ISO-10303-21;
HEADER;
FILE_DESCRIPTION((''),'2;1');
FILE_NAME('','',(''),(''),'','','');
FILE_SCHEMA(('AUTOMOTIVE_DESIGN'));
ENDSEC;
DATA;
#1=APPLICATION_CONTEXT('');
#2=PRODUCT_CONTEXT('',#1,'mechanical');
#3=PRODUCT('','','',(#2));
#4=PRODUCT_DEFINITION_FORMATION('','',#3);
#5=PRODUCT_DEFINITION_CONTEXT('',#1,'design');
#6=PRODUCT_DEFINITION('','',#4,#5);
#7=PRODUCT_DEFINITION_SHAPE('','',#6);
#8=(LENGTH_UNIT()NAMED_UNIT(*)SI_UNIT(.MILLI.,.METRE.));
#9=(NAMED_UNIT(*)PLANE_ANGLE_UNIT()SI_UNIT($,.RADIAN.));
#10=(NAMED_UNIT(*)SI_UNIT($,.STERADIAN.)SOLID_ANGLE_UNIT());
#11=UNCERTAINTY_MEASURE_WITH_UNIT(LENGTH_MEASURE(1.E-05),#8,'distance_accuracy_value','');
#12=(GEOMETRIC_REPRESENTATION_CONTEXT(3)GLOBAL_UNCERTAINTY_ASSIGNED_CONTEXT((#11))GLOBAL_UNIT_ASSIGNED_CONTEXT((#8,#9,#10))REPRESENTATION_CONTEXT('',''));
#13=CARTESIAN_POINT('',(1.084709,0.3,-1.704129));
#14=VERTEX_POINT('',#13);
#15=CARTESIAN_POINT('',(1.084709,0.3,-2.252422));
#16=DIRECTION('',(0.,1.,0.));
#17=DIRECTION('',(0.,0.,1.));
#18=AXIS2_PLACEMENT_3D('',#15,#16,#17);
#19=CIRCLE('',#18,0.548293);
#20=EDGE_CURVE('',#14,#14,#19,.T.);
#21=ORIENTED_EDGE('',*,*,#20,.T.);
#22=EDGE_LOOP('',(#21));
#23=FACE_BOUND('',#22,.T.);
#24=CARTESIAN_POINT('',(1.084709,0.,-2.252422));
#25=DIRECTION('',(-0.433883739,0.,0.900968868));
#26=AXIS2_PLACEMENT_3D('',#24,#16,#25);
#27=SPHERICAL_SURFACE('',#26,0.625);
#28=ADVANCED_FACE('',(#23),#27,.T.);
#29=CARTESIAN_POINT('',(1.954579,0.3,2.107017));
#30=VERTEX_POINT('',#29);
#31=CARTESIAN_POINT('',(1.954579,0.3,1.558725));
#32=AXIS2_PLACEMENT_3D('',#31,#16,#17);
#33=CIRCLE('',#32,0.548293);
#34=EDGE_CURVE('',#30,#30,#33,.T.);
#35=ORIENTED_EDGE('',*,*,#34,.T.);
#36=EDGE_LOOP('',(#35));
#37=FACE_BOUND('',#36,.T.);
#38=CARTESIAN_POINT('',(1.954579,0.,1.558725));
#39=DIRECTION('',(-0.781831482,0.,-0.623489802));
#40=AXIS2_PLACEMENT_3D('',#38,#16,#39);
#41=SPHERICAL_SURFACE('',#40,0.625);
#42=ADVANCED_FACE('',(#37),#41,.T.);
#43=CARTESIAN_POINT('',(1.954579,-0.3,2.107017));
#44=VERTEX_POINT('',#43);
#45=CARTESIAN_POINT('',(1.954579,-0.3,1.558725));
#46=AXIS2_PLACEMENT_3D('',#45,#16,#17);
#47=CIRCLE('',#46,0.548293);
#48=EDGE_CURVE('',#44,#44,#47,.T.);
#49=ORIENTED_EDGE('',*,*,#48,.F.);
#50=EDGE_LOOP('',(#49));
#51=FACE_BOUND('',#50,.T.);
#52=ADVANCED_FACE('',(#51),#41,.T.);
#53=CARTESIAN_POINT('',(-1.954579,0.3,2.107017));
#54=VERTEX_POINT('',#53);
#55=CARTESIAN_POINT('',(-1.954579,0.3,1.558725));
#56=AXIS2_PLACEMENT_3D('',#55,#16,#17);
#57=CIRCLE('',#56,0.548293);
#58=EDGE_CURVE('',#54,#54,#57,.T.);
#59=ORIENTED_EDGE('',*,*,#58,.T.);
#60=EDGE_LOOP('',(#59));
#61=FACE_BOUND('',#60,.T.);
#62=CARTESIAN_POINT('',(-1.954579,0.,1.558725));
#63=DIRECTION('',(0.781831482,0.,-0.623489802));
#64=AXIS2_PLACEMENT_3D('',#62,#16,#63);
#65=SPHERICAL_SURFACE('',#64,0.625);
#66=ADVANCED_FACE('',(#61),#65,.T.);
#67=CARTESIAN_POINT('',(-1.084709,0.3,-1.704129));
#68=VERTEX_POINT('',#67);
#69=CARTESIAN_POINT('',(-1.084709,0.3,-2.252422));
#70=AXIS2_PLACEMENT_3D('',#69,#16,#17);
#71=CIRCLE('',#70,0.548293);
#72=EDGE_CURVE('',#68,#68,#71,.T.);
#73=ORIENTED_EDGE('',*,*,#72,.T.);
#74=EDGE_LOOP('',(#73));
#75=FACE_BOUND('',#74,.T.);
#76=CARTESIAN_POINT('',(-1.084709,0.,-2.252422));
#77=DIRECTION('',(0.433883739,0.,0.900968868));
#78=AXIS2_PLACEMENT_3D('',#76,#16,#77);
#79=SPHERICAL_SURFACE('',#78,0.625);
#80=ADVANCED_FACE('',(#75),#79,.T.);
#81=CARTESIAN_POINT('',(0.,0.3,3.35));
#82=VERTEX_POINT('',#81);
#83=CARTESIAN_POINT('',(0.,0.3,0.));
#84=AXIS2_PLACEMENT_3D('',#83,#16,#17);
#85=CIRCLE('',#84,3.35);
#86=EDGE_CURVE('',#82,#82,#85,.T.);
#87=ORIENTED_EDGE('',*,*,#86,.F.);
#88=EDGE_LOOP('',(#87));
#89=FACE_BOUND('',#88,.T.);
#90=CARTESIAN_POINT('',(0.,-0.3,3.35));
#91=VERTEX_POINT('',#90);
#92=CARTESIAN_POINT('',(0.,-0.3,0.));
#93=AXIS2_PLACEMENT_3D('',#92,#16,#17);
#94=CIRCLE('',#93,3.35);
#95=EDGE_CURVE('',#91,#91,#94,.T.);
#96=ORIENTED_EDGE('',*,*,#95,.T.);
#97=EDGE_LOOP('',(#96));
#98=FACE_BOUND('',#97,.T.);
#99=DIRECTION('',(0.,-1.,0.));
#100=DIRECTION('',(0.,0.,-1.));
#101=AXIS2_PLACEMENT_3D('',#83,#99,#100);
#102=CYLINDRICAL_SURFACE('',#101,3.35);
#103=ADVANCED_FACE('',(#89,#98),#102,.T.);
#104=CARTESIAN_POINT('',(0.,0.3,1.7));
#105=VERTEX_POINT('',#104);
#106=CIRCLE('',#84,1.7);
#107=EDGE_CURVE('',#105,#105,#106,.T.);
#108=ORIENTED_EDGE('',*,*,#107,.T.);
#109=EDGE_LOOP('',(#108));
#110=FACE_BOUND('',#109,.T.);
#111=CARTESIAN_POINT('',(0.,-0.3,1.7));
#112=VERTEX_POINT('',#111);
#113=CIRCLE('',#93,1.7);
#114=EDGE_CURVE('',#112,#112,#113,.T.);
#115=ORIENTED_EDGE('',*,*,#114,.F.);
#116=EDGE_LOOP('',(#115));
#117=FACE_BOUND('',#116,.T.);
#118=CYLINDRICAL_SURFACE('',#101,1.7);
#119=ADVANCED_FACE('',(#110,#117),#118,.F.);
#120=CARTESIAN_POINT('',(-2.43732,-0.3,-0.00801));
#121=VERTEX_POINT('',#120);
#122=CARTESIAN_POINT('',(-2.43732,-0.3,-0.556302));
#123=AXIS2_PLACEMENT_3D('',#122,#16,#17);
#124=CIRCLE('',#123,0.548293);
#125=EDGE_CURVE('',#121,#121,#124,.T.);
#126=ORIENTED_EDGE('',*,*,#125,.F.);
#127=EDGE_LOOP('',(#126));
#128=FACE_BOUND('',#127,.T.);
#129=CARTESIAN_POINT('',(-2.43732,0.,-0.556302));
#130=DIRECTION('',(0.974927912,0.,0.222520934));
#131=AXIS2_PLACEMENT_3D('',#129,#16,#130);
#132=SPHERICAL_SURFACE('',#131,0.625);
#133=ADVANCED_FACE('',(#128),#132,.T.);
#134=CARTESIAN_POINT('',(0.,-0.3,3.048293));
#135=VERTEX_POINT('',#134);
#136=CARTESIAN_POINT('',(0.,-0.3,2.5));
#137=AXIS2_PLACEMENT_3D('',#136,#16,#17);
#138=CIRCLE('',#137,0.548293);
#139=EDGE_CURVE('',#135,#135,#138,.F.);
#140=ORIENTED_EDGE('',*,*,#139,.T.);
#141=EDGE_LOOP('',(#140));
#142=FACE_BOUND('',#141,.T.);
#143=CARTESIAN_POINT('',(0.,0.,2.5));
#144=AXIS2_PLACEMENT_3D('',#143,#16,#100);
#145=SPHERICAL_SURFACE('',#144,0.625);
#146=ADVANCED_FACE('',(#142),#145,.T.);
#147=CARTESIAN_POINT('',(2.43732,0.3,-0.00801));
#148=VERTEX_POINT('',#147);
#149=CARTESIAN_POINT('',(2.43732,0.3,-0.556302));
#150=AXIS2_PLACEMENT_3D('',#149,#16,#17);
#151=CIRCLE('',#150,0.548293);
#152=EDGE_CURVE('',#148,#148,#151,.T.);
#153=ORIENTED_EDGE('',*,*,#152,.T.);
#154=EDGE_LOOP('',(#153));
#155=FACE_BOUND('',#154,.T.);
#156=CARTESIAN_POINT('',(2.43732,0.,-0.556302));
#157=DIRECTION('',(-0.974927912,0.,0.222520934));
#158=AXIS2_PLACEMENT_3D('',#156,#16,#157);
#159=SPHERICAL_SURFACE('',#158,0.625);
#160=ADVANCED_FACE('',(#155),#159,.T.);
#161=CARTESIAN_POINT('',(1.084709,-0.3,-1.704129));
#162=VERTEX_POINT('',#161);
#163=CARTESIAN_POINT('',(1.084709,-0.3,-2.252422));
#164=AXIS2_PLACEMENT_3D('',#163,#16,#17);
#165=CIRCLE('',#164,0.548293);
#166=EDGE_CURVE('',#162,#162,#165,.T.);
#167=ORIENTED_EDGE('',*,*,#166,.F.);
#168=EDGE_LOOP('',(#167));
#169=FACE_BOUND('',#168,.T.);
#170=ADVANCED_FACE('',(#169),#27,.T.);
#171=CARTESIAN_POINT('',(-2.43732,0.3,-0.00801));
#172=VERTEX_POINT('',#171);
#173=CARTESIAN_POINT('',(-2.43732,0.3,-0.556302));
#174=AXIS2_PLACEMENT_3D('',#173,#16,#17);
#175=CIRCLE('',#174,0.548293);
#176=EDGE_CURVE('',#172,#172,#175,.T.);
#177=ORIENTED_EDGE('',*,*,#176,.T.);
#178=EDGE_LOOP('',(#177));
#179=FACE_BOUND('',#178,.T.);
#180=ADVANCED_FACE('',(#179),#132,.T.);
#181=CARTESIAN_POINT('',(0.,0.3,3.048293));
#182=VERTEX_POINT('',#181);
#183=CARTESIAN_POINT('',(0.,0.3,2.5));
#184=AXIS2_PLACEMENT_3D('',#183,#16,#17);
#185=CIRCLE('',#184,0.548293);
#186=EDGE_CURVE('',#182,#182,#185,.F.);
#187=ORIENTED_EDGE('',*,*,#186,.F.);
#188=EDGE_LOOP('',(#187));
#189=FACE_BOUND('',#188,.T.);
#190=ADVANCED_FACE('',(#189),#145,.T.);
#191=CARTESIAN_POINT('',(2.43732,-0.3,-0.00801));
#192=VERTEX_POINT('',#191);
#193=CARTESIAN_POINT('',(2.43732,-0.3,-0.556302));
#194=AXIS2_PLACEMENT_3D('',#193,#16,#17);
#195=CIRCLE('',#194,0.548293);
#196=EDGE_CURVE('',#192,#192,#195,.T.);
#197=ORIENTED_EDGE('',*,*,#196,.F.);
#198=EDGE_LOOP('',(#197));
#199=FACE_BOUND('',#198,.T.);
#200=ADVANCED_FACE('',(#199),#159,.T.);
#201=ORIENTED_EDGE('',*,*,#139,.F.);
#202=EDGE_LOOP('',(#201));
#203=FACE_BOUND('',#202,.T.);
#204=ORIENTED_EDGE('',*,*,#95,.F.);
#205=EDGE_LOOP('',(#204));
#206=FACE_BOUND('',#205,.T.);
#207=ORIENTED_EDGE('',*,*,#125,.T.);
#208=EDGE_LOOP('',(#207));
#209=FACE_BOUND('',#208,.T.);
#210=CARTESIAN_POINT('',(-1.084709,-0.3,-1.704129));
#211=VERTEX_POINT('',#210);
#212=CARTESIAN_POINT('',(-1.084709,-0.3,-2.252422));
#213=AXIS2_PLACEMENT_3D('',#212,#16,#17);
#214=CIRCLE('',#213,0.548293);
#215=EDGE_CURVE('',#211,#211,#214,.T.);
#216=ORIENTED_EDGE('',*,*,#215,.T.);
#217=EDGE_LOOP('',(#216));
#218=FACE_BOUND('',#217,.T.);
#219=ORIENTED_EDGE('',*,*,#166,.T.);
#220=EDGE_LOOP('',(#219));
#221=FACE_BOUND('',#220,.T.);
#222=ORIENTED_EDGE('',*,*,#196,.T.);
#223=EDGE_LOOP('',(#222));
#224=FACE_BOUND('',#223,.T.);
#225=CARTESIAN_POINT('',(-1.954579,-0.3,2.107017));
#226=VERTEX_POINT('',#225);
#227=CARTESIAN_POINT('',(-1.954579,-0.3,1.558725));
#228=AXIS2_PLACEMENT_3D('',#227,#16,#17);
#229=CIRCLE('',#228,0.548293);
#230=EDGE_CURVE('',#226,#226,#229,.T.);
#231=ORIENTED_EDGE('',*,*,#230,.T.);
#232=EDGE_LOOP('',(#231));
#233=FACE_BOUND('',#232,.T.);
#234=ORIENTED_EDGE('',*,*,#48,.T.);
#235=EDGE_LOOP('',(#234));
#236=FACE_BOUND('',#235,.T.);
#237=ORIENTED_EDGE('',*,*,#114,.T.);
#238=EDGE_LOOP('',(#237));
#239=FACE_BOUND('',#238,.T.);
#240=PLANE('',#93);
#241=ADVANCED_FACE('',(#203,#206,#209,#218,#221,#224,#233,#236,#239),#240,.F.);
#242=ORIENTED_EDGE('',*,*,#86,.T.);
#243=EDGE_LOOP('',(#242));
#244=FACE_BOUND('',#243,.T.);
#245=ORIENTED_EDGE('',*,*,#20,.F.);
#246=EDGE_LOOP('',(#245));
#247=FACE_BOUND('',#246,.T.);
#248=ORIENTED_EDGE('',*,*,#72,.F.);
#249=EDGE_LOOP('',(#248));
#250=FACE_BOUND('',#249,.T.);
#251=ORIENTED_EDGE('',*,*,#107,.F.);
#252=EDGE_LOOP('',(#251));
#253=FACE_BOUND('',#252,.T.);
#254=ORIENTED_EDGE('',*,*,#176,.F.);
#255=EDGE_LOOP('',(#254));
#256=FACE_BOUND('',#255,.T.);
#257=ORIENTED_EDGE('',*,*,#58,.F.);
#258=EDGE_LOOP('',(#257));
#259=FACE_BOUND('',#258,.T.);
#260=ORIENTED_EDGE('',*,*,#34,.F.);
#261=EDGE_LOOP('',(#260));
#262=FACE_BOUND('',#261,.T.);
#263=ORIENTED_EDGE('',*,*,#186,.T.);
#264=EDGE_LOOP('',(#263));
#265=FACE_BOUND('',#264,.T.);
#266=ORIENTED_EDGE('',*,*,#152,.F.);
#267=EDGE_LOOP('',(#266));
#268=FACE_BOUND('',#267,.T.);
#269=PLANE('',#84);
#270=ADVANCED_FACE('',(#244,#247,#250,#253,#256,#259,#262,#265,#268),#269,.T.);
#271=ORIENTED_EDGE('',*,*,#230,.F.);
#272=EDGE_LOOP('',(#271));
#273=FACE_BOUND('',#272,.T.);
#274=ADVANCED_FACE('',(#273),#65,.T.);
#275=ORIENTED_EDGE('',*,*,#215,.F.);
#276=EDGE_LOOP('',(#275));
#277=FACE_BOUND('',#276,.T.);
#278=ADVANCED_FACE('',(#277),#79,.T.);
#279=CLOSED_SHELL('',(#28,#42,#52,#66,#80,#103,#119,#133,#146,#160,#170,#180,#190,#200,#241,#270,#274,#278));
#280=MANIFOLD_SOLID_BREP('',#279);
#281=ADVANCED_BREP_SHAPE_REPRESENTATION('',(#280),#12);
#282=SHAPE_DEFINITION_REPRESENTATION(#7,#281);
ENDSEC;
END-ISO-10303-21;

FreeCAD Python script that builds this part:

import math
import FreeCAD as App
import Part
import Sketcher
from FreeCAD import Vector

doc = App.newDocument("Part")
body = doc.addObject("PartDesign::Body", "Body")

# Sketch on YZ plane
sketch1 = doc.addObject("Sketcher::SketchObject", "Sketch")
body.addObject(sketch1)
sketch1.AttachmentSupport = (doc.YZ_Plane, [""])
sketch1.MapMode = "FlatFace"
sketch1.addGeometry(Part.LineSegment(Vector(-0.6, 2.5, 0), Vector(0.6, 2.5, 0)), False)
sketch1.addGeometry(Part.ArcOfCircle(Part.Circle(Vector(0, 2.5, 0), Vector(0, 0, 1), 0.6), math.radians(0), math.radians(180)), False)
sketch1.addGeometry(Part.LineSegment(Vector(0.6, 2.5, 0), Vector(-0.6, 2.5, 0)), True)  # axis
sketch1.addConstraint(Sketcher.Constraint("Coincident", 0, 1, 1, 2))
sketch1.addConstraint(Sketcher.Constraint("Coincident", 1, 1, 0, 2))
sketch1.addConstraint(Sketcher.Constraint("Horizontal", 0))
sketch1.addConstraint(Sketcher.Constraint("Horizontal", 2))
sketch1.addConstraint(Sketcher.Constraint("Coincident", 2, 1, 1, 1))
sketch1.addConstraint(Sketcher.Constraint("PointOnObject", 1, 3, -2))
sketch1.addConstraint(Sketcher.Constraint("Horizontal", 1, 3, 0, 1))
sketch1.addConstraint(Sketcher.Constraint("Equal", 0, 2))
sketch1.addConstraint(Sketcher.Constraint("Radius", 1, 0.625))
sketch1.addConstraint(Sketcher.Constraint("DistanceY", -1, 1, 1, 3, 2.5))
revolution = doc.addObject("PartDesign::Revolution", "Revolution")
body.addObject(revolution)
revolution.Profile = sketch1
revolution.ReferenceAxis = (sketch1, ["Axis0"])
revolution.Angle = 360

# Sketch on XZ plane
sketch2 = doc.addObject("Sketcher::SketchObject", "Sketch001")
body.addObject(sketch2)
sketch2.AttachmentSupport = (doc.XZ_Plane, [""])
sketch2.MapMode = "FlatFace"
sketch2.addGeometry(Part.Circle(Vector(0, 0, 0), Vector(0, 0, 1), 3.4), False)
sketch2.addGeometry(Part.Circle(Vector(0, 0, 0), Vector(0, 0, 1), 1.7), False)
sketch2.addConstraint(Sketcher.Constraint("Coincident", 0, 3, -1, 1))
sketch2.addConstraint(Sketcher.Constraint("Coincident", 1, 3, -1, 1))
sketch2.addConstraint(Sketcher.Constraint("Diameter", 0, 6.7))
sketch2.addConstraint(Sketcher.Constraint("Diameter", 1, 3.4))
pad1 = doc.addObject("PartDesign::Pad", "Pad")
body.addObject(pad1)
pad1.Profile = sketch2
pad1.Length = 0.6
pad1.Midplane = True
doc.recompute()

polarpattern = doc.addObject("PartDesign::PolarPattern", "PolarPattern")
body.addObject(polarpattern)
polarpattern.Originals = [revolution]
polarpattern.Axis = (doc.Y_Axis, [""])
polarpattern.Angle = 360
polarpattern.Occurrences = 7
body.Tip = polarpattern

doc.recompute()
